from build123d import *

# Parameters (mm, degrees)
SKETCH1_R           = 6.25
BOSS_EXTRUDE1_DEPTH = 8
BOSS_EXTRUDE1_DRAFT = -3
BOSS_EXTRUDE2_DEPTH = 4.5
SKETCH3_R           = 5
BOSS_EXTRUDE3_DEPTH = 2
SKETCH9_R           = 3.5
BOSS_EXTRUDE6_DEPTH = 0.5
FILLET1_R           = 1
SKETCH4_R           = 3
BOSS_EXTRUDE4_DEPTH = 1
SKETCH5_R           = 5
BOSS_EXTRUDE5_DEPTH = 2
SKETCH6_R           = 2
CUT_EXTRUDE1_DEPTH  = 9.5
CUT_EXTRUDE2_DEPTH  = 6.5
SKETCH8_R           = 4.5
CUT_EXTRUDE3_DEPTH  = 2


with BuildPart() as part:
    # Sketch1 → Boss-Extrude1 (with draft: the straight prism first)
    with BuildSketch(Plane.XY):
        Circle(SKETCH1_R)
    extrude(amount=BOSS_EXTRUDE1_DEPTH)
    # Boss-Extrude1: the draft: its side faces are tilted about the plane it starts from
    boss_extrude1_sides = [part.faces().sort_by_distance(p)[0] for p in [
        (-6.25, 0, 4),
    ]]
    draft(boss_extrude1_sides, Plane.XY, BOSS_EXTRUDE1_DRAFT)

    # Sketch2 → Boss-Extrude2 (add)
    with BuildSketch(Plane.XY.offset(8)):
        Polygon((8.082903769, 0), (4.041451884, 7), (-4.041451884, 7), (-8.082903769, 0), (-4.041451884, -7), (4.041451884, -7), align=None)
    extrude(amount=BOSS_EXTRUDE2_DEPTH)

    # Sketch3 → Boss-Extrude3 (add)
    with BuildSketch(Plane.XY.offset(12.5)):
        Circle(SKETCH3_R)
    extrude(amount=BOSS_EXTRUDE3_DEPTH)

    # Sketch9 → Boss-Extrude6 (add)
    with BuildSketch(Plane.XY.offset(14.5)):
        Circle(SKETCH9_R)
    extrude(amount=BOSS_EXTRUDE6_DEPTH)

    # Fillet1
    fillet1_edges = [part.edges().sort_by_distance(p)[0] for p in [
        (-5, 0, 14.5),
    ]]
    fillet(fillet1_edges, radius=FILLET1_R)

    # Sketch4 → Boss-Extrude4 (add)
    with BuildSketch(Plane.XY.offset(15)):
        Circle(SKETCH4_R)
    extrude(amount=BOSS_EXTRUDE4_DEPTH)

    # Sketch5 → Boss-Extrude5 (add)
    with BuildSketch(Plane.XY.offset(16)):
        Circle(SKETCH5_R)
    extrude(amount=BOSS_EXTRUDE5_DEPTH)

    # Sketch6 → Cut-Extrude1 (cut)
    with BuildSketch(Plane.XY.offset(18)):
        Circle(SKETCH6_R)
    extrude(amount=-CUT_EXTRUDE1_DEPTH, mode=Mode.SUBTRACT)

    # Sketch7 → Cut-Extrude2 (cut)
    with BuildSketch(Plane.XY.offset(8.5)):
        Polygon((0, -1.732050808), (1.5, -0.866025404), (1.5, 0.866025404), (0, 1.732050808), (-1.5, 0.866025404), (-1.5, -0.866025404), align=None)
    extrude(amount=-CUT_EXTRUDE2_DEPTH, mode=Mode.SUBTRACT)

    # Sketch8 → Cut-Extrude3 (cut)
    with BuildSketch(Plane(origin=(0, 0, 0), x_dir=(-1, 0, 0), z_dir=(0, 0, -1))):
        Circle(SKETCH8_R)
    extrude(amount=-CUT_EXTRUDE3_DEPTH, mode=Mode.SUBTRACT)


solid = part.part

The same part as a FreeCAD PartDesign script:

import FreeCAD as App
import Part
import Sketcher
from FreeCAD import Vector
Q = App.Units.Quantity


def edges_at(feature, points):
    """Names of the edges that pass closest to the given points."""
    edges = feature.Shape.Edges
    near = lambda p: min(range(len(edges)), key=lambda i: edges[i].distToShape(Part.Vertex(*p))[0])
    return sorted({f"Edge{near(p) + 1}" for p in points})


def faces_at(feature, points):
    """Names of the faces that lie closest to the given points."""
    faces = feature.Shape.Faces
    near = lambda p: min(range(len(faces)), key=lambda i: faces[i].distToShape(Part.Vertex(*p))[0])
    return sorted({f"Face{near(p) + 1}" for p in points})


def add_polygon(sketch, points):
    """Adds a closed chain of lines whose ends are joined by coincident constraints."""
    first, n = sketch.GeometryCount, len(points)
    for a, b in zip(points, points[1:] + points[:1]):
        sketch.addGeometry(Part.LineSegment(App.Vector(*a, 0), App.Vector(*b, 0)), False)
    for i in range(n):
        sketch.addConstraint(Sketcher.Constraint("Coincident", first + i, 2, first + (i + 1) % n, 1))

doc = App.newDocument("Part")
body = doc.addObject("PartDesign::Body", "Body")

# Sketch on XY plane
sketch1 = body.newObject("Sketcher::SketchObject", "Sketch")
sketch1.AttachmentSupport = (doc.getObject("XY_Plane"), [""])
sketch1.MapMode = "FlatFace"
sketch1.addGeometry(Part.Circle(Vector(0, 0, 0), Vector(0, 0, 1), 6), False)
sketch1.addConstraint(Sketcher.Constraint("Coincident", 0, 3, -1, 1))
sketch1.addConstraint(Sketcher.Constraint("Diameter", 0, Q("12.5 mm")))
pad1 = body.newObject("PartDesign::Pad", "Pad")
pad1.Profile = sketch1
pad1.Length = 8
doc.recompute()

draft = body.newObject("PartDesign::Draft", "Draft")
draft.Base = (pad1, faces_at(pad1, [(-6.25, 0, 4)]))
draft.NeutralPlane = (doc.getObject("XY_Plane"), [""])
draft.Angle = 3
draft.Reversed = True

# Sketch on XY plane
sketch2 = body.newObject("Sketcher::SketchObject", "Sketch001")
sketch2.AttachmentSupport = (doc.getObject("XY_Plane"), [""])
sketch2.MapMode = "FlatFace"
sketch2.AttachmentOffset = App.Placement(Vector(0, 0, 8), App.Rotation())
add_polygon(sketch2, [(8, 0), (4, 7), (-4, 7), (-8, 0), (-4, -7), (4, -7)])  # lines 0-5
sketch2.addConstraint(Sketcher.Constraint("Horizontal", 1))
sketch2.addConstraint(Sketcher.Constraint("Horizontal", 4))
sketch2.addConstraint(Sketcher.Constraint("Symmetric", 0, 2, 3, 2, -1, 1))
sketch2.addConstraint(Sketcher.Constraint("Symmetric", 2, 2, 5, 2, -1, 1))
sketch2.addConstraint(Sketcher.Constraint("PointOnObject", 2, 2, -1))
sketch2.addConstraint(Sketcher.Constraint("Parallel", 2, 5))
sketch2.addConstraint(Sketcher.Constraint("Vertical", 1, 2, 3, 2))
sketch2.addConstraint(Sketcher.Constraint("Angle", 0, Q("120 deg")))
sketch2.addConstraint(Sketcher.Constraint("DistanceY", -1, 1, 0, 2, Q("7 mm")))
sketch2.addConstraint(Sketcher.Constraint("DistanceX", 1, 2, 1, 1, Q("8.082904 mm")))
pad2 = body.newObject("PartDesign::Pad", "Pad001")
pad2.Profile = sketch2
pad2.Length = 4.5

# Sketch on XY plane
sketch3 = body.newObject("Sketcher::SketchObject", "Sketch002")
sketch3.AttachmentSupport = (doc.getObject("XY_Plane"), [""])
sketch3.MapMode = "FlatFace"
sketch3.AttachmentOffset = App.Placement(Vector(0, 0, 12.5), App.Rotation())
sketch3.addGeometry(Part.Circle(Vector(0, 0, 0), Vector(0, 0, 1), 5), False)
sketch3.addConstraint(Sketcher.Constraint("Coincident", 0, 3, -1, 1))
sketch3.addConstraint(Sketcher.Constraint("Diameter", 0, Q("10 mm")))
pad3 = body.newObject("PartDesign::Pad", "Pad002")
pad3.Profile = sketch3
pad3.Length = 2

# Sketch on XY plane
sketch4 = body.newObject("Sketcher::SketchObject", "Sketch003")
sketch4.AttachmentSupport = (doc.getObject("XY_Plane"), [""])
sketch4.MapMode = "FlatFace"
sketch4.AttachmentOffset = App.Placement(Vector(0, 0, 14.5), App.Rotation())
sketch4.addGeometry(Part.Circle(Vector(0, 0, 0), Vector(0, 0, 1), 3.5), False)
sketch4.addConstraint(Sketcher.Constraint("Coincident", 0, 3, -1, 1))
sketch4.addConstraint(Sketcher.Constraint("Diameter", 0, Q("7 mm")))
pad4 = body.newObject("PartDesign::Pad", "Pad003")
pad4.Profile = sketch4
pad4.Length = 0.5
doc.recompute()

fillet = body.newObject("PartDesign::Fillet", "Fillet")
fillet.Base = (pad4, edges_at(pad4, [(-5, 0, 14.5)]))
fillet.Radius = 1

# Sketch on XY plane
sketch5 = body.newObject("Sketcher::SketchObject", "Sketch004")
sketch5.AttachmentSupport = (doc.getObject("XY_Plane"), [""])
sketch5.MapMode = "FlatFace"
sketch5.AttachmentOffset = App.Placement(Vector(0, 0, 15), App.Rotation())
sketch5.addGeometry(Part.Circle(Vector(0, 0, 0), Vector(0, 0, 1), 3), False)
sketch5.addConstraint(Sketcher.Constraint("Coincident", 0, 3, -1, 1))
sketch5.addConstraint(Sketcher.Constraint("Diameter", 0, Q("6 mm")))
pad5 = body.newObject("PartDesign::Pad", "Pad004")
pad5.Profile = sketch5
pad5.Length = 1

# Sketch on XY plane
sketch6 = body.newObject("Sketcher::SketchObject", "Sketch005")
sketch6.AttachmentSupport = (doc.getObject("XY_Plane"), [""])
sketch6.MapMode = "FlatFace"
sketch6.AttachmentOffset = App.Placement(Vector(0, 0, 16), App.Rotation())
sketch6.addGeometry(Part.Circle(Vector(0, 0, 0), Vector(0, 0, 1), 5), False)
sketch6.addConstraint(Sketcher.Constraint("Coincident", 0, 3, -1, 1))
sketch6.addConstraint(Sketcher.Constraint("Diameter", 0, Q("10 mm")))
pad6 = body.newObject("PartDesign::Pad", "Pad005")
pad6.Profile = sketch6
pad6.Length = 2

# Sketch on XY plane
sketch7 = body.newObject("Sketcher::SketchObject", "Sketch006")
sketch7.AttachmentSupport = (doc.getObject("XY_Plane"), [""])
sketch7.MapMode = "FlatFace"
sketch7.AttachmentOffset = App.Placement(Vector(0, 0, 18), App.Rotation())
sketch7.addGeometry(Part.Circle(Vector(0, 0, 0), Vector(0, 0, 1), 2), False)
sketch7.addConstraint(Sketcher.Constraint("Coincident", 0, 3, -1, 1))
sketch7.addConstraint(Sketcher.Constraint("Diameter", 0, Q("4 mm")))
pocket1 = body.newObject("PartDesign::Pocket", "Pocket")
pocket1.Profile = sketch7
pocket1.Length = 9.5

# Sketch on XY plane
sketch8 = body.newObject("Sketcher::SketchObject", "Sketch007")
sketch8.AttachmentSupport = (doc.getObject("XY_Plane"), [""])
sketch8.MapMode = "FlatFace"
sketch8.AttachmentOffset = App.Placement(Vector(0, 0, 8.5), App.Rotation())
add_polygon(sketch8, [(0, -1.7), (1.5, -0.9), (1.5, 0.9), (0, 1.7), (-1.5, 0.9), (-1.5, -0.9)])  # lines 0-5
sketch8.addConstraint(Sketcher.Constraint("Vertical", 1))
sketch8.addConstraint(Sketcher.Constraint("Vertical", 4))
sketch8.addConstraint(Sketcher.Constraint("Symmetric", 0, 2, 3, 2, -1, 1))
sketch8.addConstraint(Sketcher.Constraint("Symmetric", 2, 2, 5, 2, -1, 1))
sketch8.addConstraint(Sketcher.Constraint("PointOnObject", 2, 2, -2))
sketch8.addConstraint(Sketcher.Constraint("Parallel", 2, 5))
sketch8.addConstraint(Sketcher.Constraint("Horizontal", 1, 2, 3, 2))
sketch8.addConstraint(Sketcher.Constraint("Angle", 0, Q("30 deg")))
sketch8.addConstraint(Sketcher.Constraint("DistanceX", 3, 2, 1, 2, Q("3 mm")))
sketch8.addConstraint(Sketcher.Constraint("DistanceY", 1, 1, 1, 2, Q("1.732051 mm")))
pocket2 = body.newObject("PartDesign::Pocket", "Pocket001")
pocket2.Profile = sketch8
pocket2.Length = 6.5

# Sketch on XY plane
sketch9 = body.newObject("Sketcher::SketchObject", "Sketch008")
sketch9.AttachmentSupport = (doc.getObject("XY_Plane"), [""])
sketch9.MapMode = "FlatFace"
sketch9.addGeometry(Part.Circle(Vector(0, 0, 0), Vector(0, 0, 1), 4.5), False)
sketch9.addConstraint(Sketcher.Constraint("Coincident", 0, 3, -1, 1))
sketch9.addConstraint(Sketcher.Constraint("Diameter", 0, Q("9 mm")))
pocket3 = body.newObject("PartDesign::Pocket", "Pocket002")
pocket3.Profile = sketch9
pocket3.Length = 2
pocket3.Reversed = True

doc.recompute()
